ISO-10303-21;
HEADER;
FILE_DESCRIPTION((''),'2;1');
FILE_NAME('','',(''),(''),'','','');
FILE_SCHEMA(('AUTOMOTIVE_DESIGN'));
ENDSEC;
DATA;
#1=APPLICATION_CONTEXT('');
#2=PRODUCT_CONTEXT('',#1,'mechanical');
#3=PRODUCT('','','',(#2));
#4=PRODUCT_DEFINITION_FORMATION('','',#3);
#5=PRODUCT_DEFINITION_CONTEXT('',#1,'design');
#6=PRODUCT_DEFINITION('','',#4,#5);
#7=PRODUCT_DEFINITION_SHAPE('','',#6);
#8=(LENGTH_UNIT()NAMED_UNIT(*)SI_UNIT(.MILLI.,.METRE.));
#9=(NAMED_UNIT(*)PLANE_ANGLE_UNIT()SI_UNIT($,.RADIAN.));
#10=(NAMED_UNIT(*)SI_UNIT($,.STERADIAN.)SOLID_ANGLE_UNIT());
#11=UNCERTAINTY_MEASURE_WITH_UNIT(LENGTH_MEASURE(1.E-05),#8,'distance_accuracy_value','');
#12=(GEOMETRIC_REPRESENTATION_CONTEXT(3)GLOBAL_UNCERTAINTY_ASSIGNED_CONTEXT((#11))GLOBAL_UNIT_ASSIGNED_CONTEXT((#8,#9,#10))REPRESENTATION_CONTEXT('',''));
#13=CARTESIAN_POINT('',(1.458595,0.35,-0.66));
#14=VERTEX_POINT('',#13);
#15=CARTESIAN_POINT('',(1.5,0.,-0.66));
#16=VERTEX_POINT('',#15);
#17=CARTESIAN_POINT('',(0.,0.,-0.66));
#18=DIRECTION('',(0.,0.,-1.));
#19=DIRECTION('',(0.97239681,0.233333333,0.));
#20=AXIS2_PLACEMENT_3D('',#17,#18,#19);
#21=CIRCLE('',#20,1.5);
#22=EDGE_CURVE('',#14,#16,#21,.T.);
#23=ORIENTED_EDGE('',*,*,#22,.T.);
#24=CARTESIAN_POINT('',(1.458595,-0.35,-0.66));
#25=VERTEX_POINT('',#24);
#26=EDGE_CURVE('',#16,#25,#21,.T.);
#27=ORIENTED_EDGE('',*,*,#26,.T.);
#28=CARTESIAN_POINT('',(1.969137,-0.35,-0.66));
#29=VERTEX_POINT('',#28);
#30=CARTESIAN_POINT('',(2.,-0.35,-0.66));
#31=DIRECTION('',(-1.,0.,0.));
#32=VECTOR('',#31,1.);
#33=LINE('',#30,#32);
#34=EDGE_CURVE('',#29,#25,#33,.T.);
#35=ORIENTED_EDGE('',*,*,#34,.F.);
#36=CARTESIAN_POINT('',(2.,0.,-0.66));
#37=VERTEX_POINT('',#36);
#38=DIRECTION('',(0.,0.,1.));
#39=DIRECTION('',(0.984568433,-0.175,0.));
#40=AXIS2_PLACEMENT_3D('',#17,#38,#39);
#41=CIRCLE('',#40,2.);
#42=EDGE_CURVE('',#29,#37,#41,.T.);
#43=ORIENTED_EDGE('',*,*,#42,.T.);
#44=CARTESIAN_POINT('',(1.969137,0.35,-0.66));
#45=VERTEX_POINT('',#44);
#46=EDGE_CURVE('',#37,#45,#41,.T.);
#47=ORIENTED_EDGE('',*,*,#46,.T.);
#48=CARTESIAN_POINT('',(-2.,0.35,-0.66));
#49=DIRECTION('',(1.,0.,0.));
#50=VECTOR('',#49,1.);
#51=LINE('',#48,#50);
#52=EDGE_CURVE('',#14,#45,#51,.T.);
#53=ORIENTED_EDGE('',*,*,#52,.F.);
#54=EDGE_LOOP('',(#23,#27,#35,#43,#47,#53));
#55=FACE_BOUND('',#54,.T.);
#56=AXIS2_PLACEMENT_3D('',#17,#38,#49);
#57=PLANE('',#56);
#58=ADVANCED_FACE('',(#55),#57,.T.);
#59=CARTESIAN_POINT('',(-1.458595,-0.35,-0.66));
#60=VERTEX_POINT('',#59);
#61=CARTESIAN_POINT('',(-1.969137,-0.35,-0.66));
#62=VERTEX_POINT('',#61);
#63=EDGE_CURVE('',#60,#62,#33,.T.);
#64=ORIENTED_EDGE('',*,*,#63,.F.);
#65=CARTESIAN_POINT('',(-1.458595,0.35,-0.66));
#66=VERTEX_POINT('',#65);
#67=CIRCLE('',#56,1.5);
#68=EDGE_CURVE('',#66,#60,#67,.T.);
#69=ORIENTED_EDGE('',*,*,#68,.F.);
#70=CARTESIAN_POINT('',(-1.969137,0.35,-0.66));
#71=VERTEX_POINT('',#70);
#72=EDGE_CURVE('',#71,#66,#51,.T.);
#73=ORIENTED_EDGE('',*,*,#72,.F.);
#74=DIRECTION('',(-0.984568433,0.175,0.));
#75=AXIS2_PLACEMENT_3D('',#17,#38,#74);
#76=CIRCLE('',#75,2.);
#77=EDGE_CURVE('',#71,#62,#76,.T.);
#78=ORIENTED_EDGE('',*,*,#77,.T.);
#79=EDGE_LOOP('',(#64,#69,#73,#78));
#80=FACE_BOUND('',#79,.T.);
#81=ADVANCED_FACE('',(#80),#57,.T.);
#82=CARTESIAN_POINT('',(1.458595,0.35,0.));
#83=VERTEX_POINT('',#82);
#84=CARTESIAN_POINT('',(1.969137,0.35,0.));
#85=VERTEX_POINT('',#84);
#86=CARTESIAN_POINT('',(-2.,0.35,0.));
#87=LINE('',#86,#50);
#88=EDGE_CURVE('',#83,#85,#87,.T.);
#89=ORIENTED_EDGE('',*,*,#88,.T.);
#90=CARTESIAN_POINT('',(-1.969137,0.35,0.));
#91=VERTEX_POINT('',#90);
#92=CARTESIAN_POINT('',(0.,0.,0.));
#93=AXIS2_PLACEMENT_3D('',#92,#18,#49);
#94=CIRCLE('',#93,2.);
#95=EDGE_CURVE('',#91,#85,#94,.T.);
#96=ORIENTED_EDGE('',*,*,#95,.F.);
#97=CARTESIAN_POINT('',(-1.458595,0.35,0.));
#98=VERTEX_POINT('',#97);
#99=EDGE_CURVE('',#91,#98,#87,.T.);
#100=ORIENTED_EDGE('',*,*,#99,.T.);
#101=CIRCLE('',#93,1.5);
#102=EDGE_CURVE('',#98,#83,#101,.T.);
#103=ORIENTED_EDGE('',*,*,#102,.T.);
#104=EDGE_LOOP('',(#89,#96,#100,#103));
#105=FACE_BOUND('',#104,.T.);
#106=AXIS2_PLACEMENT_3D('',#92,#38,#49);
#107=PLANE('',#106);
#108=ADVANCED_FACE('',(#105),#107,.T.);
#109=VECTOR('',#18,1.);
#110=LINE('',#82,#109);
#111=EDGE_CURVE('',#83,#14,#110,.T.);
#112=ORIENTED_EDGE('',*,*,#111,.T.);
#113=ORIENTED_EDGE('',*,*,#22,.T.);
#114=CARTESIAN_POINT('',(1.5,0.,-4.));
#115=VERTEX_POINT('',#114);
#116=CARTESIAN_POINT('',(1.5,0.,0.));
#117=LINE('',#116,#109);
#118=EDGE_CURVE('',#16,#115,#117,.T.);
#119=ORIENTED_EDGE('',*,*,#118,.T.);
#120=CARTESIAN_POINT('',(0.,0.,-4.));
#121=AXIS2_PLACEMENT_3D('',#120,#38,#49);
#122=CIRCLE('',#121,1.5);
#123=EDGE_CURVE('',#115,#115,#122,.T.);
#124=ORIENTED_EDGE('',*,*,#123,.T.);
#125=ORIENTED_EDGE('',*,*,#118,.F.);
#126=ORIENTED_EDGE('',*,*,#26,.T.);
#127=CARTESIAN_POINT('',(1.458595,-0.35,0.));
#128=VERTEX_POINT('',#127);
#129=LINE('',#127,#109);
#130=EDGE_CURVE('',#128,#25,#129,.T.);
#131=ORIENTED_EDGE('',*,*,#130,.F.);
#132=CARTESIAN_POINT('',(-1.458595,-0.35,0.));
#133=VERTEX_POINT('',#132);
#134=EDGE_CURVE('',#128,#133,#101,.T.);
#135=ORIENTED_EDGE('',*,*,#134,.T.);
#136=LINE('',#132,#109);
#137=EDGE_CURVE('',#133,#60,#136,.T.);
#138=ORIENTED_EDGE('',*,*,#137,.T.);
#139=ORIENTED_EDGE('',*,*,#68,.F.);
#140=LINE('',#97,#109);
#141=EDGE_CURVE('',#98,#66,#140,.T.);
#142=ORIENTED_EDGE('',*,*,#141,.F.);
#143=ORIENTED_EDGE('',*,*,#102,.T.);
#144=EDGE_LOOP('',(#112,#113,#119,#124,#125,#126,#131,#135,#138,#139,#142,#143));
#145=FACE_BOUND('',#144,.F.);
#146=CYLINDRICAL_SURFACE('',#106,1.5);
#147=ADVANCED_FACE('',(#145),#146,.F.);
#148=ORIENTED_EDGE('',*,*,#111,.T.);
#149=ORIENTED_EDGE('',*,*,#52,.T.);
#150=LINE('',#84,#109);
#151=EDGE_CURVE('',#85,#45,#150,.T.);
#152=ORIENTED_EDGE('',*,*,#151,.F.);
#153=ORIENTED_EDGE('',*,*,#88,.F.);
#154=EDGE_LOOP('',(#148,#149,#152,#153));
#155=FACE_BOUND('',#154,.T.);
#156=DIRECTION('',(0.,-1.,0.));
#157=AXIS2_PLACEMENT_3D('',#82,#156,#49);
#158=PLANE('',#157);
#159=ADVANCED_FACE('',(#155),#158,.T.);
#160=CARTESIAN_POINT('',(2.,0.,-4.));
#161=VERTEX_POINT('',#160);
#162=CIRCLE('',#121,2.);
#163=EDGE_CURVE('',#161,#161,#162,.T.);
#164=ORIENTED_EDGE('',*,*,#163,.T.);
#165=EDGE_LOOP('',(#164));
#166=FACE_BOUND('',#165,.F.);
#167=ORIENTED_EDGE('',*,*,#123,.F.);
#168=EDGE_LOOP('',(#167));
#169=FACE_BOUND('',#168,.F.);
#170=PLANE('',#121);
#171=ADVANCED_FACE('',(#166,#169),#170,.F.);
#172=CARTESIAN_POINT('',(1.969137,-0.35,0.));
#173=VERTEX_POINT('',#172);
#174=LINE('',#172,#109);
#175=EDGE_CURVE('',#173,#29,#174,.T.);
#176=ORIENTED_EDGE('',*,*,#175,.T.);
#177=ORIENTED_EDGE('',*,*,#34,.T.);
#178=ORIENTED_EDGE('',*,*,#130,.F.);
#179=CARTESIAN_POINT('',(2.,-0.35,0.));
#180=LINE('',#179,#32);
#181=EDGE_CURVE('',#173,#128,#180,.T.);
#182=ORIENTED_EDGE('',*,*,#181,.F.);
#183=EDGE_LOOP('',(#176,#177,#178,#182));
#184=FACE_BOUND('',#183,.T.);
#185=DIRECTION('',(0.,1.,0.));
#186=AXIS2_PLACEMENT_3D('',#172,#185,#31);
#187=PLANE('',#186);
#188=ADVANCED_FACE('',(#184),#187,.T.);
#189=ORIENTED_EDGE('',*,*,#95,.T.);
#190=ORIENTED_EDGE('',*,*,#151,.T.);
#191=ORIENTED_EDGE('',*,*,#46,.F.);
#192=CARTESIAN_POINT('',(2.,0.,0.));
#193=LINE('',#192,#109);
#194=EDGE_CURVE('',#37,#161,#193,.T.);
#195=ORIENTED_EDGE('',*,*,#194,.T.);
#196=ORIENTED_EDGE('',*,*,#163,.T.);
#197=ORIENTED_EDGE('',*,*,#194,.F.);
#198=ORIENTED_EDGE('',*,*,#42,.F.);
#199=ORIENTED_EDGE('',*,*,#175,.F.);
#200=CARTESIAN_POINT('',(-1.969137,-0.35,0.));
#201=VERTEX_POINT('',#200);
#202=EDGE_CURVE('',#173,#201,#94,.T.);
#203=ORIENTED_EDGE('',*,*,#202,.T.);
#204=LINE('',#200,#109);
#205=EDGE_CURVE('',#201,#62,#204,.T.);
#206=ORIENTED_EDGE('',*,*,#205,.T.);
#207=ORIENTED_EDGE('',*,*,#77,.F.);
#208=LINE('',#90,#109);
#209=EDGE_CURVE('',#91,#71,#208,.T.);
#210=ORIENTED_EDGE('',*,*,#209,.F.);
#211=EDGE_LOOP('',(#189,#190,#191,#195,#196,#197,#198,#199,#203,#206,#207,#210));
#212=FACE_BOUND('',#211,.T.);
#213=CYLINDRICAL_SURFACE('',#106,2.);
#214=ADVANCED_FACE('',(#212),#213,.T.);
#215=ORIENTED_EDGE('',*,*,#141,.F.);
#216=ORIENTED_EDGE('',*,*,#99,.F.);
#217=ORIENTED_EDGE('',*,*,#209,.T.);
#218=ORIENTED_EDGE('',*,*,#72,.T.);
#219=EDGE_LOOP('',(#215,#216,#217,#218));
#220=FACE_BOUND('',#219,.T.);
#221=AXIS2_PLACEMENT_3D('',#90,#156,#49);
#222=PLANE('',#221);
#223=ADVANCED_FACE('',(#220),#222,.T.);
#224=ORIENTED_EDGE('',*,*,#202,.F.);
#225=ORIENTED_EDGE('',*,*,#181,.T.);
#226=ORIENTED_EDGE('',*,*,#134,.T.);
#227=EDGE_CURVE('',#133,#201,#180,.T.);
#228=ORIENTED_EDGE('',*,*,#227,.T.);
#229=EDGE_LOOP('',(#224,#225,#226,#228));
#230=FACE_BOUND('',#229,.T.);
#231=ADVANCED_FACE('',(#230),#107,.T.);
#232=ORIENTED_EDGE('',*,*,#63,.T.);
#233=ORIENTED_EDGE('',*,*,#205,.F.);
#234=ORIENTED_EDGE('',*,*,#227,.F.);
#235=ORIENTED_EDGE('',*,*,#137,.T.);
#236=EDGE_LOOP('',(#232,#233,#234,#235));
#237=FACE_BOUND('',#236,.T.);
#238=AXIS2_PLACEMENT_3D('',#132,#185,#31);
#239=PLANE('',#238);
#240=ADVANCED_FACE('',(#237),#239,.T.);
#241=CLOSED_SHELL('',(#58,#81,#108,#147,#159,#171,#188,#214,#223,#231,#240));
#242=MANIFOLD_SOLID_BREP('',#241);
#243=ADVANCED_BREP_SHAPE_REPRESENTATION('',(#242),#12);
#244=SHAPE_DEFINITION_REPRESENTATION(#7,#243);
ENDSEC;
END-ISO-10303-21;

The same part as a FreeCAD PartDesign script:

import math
import FreeCAD as App
import Part
import Sketcher

doc = App.newDocument("Part")
params = doc.addObject("Spreadsheet::Sheet", "Params")
for row, (alias, value) in enumerate([
    ("sketch1_diameter", "4 mm"),
    ("sketch1_diameter2", "3 mm"),
    ("pad1_length", "4 mm"),
    ("sketch2_radius", "2 mm"),
    ("sketch2_radius2", "1.5 mm"),
    ("pocket1_length", "0.66 mm"),
], start=1):
    params.set(f"A{row}", alias)
    params.set(f"B{row}", "=" + value)
    params.setAlias(f"B{row}", alias)

body = doc.addObject("PartDesign::Body", "Body")

sketch1 = body.newObject("Sketcher::SketchObject", "Sketch")
sketch1.AttachmentSupport = (doc.getObject("XY_Plane"), [""])
sketch1.MapMode = "FlatFace"
sketch1.addGeometry([
    Part.Circle(App.Vector(0, 0, 0), App.Vector(0, 0, 1), 2),
    Part.Circle(App.Vector(0, 0, 0), App.Vector(0, 0, 1), 1.5),
], False)
sketch1.addConstraint([
    Sketcher.Constraint("Coincident", 0, 3, -1, 1),
    Sketcher.Constraint("Coincident", 1, 3, -1, 1),
    Sketcher.Constraint("Diameter", 0, 4.0),
    Sketcher.Constraint("Diameter", 1, 3.0),
])
sketch1.setExpression("Constraints[2]", "Params.sketch1_diameter")
sketch1.setExpression("Constraints[3]", "Params.sketch1_diameter2")
pad1 = body.newObject("PartDesign::Pad", "Pad")
pad1.Profile = sketch1
pad1.setExpression("Length", "Params.pad1_length")
pad1.Reversed = True

sketch2 = body.newObject("Sketcher::SketchObject", "Sketch001")
sketch2.AttachmentSupport = (doc.getObject("XY_Plane"), [""])
sketch2.MapMode = "FlatFace"
sketch2.addGeometry([
    Part.ArcOfCircle(Part.Circle(App.Vector(0, 0, 0), App.Vector(0, 0, 1), 2), math.radians(-10), math.radians(10)),
    Part.LineSegment(App.Vector(2, 0.3, 0), App.Vector(1.5, 0.3, 0)),
    Part.ArcOfCircle(Part.Circle(App.Vector(0, 0, 0), App.Vector(0, 0, 1), 1.5), math.radians(-13), math.radians(13)),
    Part.LineSegment(App.Vector(1.5, -0.3, 0), App.Vector(2, -0.3, 0)),
    Part.LineSegment(App.Vector(-1.5, 0.3, 0), App.Vector(-2, 0.3, 0)),
    Part.ArcOfCircle(Part.Circle(App.Vector(0, 0, 0), App.Vector(0, 0, 1), 2), math.radians(170), math.radians(190)),
    Part.LineSegment(App.Vector(-2, -0.3, 0), App.Vector(-1.5, -0.3, 0)),
    Part.ArcOfCircle(Part.Circle(App.Vector(0, 0, 0), App.Vector(0, 0, 1), 1.5), math.radians(167), math.radians(193)),
], False)
sketch2.addConstraint([
    Sketcher.Constraint("Coincident", 0, 2, 1, 1),
    Sketcher.Constraint("Coincident", 1, 2, 2, 2),
    Sketcher.Constraint("Coincident", 2, 1, 3, 1),
    Sketcher.Constraint("Coincident", 3, 2, 0, 1),
    Sketcher.Constraint("Coincident", 4, 2, 5, 1),
    Sketcher.Constraint("Coincident", 5, 2, 6, 1),
    Sketcher.Constraint("Coincident", 6, 2, 7, 2),
    Sketcher.Constraint("Coincident", 7, 1, 4, 1),
    Sketcher.Constraint("Horizontal", 1),
    Sketcher.Constraint("Horizontal", 3),
    Sketcher.Constraint("Horizontal", 4),
    Sketcher.Constraint("Horizontal", 6),
    Sketcher.Constraint("Coincident", 0, 3, -1, 1),
    Sketcher.Constraint("Coincident", 2, 3, -1, 1),
    Sketcher.Constraint("Coincident", 5, 3, -1, 1),
    Sketcher.Constraint("Coincident", 7, 3, -1, 1),
    Sketcher.Constraint("Equal", 0, 5),
    Sketcher.Constraint("Equal", 2, 7),
    Sketcher.Constraint("Horizontal", 1, 2, 4, 2),
    Sketcher.Constraint("Horizontal", 3, 2, 5, 2),
    Sketcher.Constraint("Vertical", 1, 2, 2, 1),
    Sketcher.Constraint("Radius", 0, 2.0),
    Sketcher.Constraint("Radius", 2, 1.5),
    Sketcher.Constraint("DistanceY", 2, 1, 1, 2, 0.7),
])
sketch2.setExpression("Constraints[21]", "Params.sketch2_radius")
sketch2.setExpression("Constraints[22]", "Params.sketch2_radius2")
pocket1 = body.newObject("PartDesign::Pocket", "Pocket")
pocket1.Profile = sketch2
pocket1.setExpression("Length", "Params.pocket1_length")

doc.recompute()
